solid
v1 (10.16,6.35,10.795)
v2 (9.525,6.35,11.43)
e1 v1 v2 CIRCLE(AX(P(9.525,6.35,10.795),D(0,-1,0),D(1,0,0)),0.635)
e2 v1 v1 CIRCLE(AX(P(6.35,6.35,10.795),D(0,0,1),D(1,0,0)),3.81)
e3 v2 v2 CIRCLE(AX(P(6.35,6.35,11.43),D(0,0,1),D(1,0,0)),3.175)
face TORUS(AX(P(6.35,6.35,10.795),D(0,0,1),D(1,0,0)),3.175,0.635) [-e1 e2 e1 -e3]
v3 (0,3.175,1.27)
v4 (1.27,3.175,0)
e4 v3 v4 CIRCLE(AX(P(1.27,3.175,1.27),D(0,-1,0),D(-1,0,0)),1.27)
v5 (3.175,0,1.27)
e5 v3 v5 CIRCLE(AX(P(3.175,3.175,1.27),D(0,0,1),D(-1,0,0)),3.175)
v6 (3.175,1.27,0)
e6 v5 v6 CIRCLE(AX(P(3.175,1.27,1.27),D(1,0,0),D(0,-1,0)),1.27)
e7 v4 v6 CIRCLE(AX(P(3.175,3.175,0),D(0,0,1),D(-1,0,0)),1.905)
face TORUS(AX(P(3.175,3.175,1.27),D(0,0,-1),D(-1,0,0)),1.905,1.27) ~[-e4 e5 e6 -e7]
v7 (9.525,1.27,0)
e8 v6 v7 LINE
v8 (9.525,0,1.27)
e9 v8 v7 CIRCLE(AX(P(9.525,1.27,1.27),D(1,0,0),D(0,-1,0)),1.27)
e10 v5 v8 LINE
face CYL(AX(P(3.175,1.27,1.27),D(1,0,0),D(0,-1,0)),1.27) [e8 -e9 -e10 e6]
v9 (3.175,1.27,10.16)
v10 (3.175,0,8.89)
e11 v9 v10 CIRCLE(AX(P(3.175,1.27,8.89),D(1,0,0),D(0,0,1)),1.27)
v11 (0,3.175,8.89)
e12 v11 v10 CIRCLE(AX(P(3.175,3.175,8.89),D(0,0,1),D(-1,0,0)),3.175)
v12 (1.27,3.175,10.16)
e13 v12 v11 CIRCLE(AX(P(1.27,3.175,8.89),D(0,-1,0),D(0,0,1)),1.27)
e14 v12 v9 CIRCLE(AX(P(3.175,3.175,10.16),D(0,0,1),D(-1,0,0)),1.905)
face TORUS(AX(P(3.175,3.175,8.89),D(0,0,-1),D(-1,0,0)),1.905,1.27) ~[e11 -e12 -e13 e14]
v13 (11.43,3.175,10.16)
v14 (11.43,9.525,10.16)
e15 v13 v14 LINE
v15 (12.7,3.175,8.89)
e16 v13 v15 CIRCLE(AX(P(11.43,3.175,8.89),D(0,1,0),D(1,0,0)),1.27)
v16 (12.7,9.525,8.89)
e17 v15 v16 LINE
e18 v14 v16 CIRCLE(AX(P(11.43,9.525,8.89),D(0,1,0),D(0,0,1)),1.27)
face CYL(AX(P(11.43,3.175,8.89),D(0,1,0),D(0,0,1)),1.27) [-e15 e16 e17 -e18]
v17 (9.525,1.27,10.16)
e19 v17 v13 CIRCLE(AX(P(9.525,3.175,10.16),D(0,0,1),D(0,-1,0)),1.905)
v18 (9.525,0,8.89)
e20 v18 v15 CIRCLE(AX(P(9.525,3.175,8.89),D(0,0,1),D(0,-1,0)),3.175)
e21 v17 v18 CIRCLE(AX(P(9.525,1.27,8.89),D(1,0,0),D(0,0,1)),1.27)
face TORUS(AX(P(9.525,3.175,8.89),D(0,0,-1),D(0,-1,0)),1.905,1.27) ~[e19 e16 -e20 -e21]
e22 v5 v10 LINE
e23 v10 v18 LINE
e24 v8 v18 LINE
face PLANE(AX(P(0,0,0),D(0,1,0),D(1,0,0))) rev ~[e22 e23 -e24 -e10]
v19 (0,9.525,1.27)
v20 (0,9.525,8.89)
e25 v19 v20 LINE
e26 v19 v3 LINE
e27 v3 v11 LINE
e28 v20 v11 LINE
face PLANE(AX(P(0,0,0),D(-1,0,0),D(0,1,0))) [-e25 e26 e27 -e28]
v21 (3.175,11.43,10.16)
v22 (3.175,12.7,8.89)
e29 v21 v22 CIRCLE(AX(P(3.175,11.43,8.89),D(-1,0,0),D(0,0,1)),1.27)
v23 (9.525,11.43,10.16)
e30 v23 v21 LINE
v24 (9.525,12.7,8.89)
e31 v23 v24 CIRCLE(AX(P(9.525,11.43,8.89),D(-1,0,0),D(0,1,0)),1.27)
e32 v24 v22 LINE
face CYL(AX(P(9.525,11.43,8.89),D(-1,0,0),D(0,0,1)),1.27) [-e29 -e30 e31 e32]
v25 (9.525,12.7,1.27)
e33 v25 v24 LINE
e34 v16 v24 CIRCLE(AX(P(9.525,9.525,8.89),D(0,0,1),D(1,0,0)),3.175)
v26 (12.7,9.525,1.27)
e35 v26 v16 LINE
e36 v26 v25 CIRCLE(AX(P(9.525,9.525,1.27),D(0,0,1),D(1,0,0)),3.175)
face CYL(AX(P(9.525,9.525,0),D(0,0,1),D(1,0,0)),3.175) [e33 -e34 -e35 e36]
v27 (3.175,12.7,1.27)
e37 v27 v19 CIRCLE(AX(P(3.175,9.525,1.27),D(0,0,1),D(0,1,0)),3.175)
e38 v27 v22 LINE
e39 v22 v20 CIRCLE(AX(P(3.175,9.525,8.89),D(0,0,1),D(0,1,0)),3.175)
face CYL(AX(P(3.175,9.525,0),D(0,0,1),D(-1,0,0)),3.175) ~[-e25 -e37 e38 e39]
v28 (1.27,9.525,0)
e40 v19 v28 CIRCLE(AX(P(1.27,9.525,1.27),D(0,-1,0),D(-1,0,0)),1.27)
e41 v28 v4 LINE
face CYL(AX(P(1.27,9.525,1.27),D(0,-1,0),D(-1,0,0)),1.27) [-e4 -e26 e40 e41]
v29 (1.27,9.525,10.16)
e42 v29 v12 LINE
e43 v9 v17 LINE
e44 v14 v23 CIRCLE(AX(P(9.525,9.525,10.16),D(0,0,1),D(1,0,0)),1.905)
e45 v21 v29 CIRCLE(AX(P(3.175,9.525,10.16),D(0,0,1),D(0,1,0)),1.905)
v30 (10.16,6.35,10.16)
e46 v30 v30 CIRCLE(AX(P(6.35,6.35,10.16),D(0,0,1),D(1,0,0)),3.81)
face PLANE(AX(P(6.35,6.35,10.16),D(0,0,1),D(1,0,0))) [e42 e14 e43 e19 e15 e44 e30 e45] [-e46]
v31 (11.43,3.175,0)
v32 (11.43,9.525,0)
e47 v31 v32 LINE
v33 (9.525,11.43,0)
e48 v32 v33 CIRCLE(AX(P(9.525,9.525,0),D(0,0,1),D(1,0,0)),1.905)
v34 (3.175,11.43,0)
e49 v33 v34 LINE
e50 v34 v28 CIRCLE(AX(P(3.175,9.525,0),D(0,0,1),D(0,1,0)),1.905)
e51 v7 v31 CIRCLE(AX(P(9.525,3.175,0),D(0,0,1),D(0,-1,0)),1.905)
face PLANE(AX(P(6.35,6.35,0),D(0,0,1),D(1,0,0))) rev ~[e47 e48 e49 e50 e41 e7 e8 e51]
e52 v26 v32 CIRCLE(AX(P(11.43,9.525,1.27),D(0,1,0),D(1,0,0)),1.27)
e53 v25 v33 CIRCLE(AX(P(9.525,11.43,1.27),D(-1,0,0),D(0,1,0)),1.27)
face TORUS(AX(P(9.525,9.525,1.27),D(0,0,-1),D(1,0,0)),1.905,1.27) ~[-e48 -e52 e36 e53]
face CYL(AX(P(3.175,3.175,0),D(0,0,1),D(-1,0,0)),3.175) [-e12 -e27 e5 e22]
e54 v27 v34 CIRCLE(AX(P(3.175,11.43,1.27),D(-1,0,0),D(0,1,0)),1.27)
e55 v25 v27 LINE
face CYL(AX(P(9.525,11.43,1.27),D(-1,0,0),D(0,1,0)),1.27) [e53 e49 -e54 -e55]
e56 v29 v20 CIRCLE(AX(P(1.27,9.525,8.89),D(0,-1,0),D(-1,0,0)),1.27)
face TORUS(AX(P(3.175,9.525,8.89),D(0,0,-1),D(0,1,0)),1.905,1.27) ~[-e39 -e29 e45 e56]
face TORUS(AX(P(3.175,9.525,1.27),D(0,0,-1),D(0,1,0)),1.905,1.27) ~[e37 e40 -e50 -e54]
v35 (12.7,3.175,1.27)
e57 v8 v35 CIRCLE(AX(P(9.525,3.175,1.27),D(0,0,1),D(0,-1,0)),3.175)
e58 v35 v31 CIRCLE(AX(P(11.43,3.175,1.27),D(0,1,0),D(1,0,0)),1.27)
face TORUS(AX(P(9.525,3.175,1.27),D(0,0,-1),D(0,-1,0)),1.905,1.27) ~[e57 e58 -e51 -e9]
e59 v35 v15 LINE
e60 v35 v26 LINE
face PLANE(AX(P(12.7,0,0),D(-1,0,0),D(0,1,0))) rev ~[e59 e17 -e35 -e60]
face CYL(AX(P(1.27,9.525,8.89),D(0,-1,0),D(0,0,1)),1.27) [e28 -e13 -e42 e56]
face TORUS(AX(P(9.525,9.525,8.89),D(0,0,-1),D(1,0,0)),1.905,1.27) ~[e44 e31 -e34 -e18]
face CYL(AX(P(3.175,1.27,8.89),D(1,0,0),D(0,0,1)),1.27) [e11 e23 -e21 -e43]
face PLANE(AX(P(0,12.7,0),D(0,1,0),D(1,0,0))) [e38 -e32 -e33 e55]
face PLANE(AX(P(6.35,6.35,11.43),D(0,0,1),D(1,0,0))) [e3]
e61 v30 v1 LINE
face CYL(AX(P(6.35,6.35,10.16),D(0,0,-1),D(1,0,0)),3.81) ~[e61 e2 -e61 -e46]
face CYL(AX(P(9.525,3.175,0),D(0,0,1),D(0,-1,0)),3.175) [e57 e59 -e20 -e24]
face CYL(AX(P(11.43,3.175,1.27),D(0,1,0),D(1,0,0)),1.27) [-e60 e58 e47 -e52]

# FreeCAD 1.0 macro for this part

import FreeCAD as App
import Part
import Sketcher
Q = App.Units.Quantity


def edges_at(feature, points):
    """Names of the edges that pass closest to the given points."""
    edges = feature.Shape.Edges
    near = lambda p: min(range(len(edges)), key=lambda i: edges[i].distToShape(Part.Vertex(*p))[0])
    return sorted({f"Edge{near(p) + 1}" for p in points})


def add_polygon(sketch, points):
    """Adds a closed chain of lines whose ends are joined by coincident constraints."""
    first, n = sketch.GeometryCount, len(points)
    for a, b in zip(points, points[1:] + points[:1]):
        sketch.addGeometry(Part.LineSegment(App.Vector(*a, 0), App.Vector(*b, 0)), False)
    for i in range(n):
        sketch.addConstraint(Sketcher.Constraint("Coincident", first + i, 2, first + (i + 1) % n, 1))

doc = App.newDocument("Part")
body = doc.addObject("PartDesign::Body", "Body")

# Sketch on XY plane
sketch1 = doc.addObject("Sketcher::SketchObject", "Sketch")
body.addObject(sketch1)
sketch1.AttachmentSupport = (doc.XY_Plane, [""])
sketch1.MapMode = "FlatFace"
add_polygon(sketch1, [(0, 13), (0, 0), (13, 0), (13, 13)])  # lines 0-3
sketch1.addConstraint(Sketcher.Constraint("Vertical", 0))
sketch1.addConstraint(Sketcher.Constraint("Horizontal", 1))
sketch1.addConstraint(Sketcher.Constraint("Vertical", 2))
sketch1.addConstraint(Sketcher.Constraint("Horizontal", 3))
sketch1.addConstraint(Sketcher.Constraint("Coincident", 0, 2, -1, 1))
sketch1.addConstraint(Sketcher.Constraint("Equal", 3, 0))
sketch1.addConstraint(Sketcher.Constraint("DistanceX", 1, 1, 1, 2, Q("0.5 in")))
pad1 = doc.addObject("PartDesign::Pad", "Pad")
body.addObject(pad1)
pad1.Profile = sketch1
pad1.Length = Q("0.4 in")
doc.recompute()

fillet = doc.addObject("PartDesign::Fillet", "Fillet")
body.addObject(fillet)
fillet.Base = (pad1, edges_at(pad1, [
    (0, 0, 5.08),
    (12.7, 0, 5.08),
    (12.7, 12.7, 5.08),
    (0, 12.7, 5.08),
]))
fillet.Radius = Q("0.125 in")
doc.recompute()

fillet2 = doc.addObject("PartDesign::Fillet", "Fillet001")
body.addObject(fillet2)
fillet2.Base = (fillet, edges_at(fillet, [(6.35, 0, 10.16)]))
fillet2.Radius = Q("0.05 in")

# Sketch on XY plane
sketch2 = doc.addObject("Sketcher::SketchObject", "Sketch001")
body.addObject(sketch2)
sketch2.AttachmentSupport = (doc.XY_Plane, [""])
sketch2.MapMode = "FlatFace"
sketch2.AttachmentOffset = App.Placement(App.Vector(0, 0, 0.4 * 25.4), App.Rotation())
sketch2.addGeometry(Part.Circle(App.Vector(6.3, 6.3, 0), App.Vector(0, 0, 1), 3.8), False)
sketch2.addConstraint(Sketcher.Constraint("Diameter", 0, Q("0.3 in")))
sketch2.addConstraint(Sketcher.Constraint("DistanceX", -1, 1, 0, 3, Q("0.25 in")))
sketch2.addConstraint(Sketcher.Constraint("DistanceY", -1, 1, 0, 3, Q("0.25 in")))
pad2 = doc.addObject("PartDesign::Pad", "Pad001")
body.addObject(pad2)
pad2.Profile = sketch2
pad2.Length = Q("0.05 in")
doc.recompute()

fillet3 = doc.addObject("PartDesign::Fillet", "Fillet002")
body.addObject(fillet3)
fillet3.Base = (pad2, edges_at(pad2, [(2.54, 6.35, 11.43)]))
fillet3.Radius = Q("0.025 in")
doc.recompute()

fillet4 = doc.addObject("PartDesign::Fillet", "Fillet003")
body.addObject(fillet4)
fillet4.Base = (fillet3, edges_at(fillet3, [(0.93, 0.93, 0)]))
fillet4.Radius = Q("0.05 in")

doc.recompute()
